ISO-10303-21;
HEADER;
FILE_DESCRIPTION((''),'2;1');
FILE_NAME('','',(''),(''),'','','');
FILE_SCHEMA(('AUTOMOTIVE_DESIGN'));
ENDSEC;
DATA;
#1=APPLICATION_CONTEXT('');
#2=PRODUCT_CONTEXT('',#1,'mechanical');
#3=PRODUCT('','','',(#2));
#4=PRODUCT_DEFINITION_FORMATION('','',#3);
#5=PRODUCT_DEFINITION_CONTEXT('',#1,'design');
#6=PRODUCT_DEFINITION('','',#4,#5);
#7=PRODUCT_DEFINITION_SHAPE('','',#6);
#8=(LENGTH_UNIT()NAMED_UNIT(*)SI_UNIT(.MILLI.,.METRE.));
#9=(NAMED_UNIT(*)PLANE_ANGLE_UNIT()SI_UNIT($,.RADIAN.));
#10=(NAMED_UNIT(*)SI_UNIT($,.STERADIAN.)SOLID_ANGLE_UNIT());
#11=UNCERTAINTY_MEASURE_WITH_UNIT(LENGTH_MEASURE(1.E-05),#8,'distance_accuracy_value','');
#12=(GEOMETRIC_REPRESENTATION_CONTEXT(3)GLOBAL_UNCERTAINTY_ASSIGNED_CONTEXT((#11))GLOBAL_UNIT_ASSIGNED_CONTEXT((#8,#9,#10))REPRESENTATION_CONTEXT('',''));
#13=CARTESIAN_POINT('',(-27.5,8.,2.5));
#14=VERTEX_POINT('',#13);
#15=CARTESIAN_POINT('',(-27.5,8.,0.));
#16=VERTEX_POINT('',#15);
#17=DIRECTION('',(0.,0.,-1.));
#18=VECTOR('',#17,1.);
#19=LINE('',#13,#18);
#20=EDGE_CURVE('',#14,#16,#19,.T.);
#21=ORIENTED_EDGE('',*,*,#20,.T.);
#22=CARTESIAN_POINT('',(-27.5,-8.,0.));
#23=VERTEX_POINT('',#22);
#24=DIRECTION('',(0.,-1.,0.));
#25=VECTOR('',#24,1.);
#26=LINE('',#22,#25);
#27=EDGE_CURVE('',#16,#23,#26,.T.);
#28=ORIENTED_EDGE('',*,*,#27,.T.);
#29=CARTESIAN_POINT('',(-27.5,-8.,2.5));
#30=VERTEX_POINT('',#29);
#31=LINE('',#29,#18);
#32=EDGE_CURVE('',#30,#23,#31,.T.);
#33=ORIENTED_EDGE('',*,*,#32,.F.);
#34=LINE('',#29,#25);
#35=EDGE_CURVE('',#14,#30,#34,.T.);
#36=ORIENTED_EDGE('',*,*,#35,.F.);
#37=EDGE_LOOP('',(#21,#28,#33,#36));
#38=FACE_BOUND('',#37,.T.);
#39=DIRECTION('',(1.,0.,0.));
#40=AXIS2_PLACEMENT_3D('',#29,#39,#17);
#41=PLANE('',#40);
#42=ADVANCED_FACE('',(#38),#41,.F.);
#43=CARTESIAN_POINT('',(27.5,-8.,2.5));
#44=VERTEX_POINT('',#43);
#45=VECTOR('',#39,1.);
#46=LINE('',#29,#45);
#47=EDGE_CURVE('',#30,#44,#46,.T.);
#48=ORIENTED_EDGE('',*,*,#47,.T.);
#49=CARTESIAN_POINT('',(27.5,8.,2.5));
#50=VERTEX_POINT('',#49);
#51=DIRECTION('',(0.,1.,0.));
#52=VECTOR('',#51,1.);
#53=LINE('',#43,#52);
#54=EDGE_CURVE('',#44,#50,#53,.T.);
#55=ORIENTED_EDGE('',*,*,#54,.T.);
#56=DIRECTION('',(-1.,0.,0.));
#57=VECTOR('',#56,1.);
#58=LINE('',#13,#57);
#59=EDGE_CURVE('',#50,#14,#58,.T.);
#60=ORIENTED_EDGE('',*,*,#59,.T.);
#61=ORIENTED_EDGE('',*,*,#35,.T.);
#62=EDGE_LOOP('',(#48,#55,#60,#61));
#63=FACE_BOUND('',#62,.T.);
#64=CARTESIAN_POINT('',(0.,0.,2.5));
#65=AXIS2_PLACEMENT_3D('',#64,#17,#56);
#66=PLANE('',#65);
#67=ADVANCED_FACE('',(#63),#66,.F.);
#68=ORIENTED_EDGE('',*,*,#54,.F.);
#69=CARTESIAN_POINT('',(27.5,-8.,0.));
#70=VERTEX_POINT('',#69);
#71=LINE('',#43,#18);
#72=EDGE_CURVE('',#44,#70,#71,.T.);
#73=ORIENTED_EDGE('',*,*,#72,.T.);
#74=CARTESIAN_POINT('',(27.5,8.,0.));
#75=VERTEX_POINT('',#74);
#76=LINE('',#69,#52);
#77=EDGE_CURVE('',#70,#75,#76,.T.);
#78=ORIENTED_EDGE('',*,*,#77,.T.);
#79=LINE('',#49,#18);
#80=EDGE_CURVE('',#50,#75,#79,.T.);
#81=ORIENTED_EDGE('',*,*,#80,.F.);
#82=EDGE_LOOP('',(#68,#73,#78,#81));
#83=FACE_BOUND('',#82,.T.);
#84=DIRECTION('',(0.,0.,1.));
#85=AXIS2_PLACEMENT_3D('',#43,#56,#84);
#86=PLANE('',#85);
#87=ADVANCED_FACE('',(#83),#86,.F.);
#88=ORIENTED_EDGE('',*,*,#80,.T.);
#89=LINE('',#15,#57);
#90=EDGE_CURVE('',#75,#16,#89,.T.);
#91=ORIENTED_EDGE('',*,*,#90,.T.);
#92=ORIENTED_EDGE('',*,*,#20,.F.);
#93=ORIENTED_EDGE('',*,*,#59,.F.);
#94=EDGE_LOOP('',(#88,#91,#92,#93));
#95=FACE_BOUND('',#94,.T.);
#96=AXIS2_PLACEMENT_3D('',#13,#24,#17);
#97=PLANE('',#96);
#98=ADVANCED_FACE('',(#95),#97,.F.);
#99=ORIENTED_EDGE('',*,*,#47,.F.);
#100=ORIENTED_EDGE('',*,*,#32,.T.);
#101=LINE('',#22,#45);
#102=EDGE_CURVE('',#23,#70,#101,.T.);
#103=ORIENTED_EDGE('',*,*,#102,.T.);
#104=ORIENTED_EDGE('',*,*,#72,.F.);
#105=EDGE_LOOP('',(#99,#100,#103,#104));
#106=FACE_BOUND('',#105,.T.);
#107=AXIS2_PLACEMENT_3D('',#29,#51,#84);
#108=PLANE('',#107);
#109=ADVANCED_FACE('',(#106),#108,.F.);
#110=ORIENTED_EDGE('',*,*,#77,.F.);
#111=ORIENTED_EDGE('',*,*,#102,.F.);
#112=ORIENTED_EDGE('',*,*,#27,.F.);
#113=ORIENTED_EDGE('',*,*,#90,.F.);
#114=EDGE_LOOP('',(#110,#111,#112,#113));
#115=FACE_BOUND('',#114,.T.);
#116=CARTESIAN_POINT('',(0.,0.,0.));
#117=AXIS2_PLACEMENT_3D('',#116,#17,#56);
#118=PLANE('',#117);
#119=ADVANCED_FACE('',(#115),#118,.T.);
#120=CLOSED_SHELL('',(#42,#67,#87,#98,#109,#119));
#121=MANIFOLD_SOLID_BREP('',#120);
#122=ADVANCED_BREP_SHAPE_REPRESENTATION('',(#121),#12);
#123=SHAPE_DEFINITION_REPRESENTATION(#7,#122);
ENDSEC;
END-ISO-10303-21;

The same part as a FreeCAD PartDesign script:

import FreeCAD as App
import Part
import Sketcher
from FreeCAD import Vector
Q = App.Units.Quantity


def add_polygon(sketch, points):
    """Adds a closed chain of lines whose ends are joined by coincident constraints."""
    first, n = sketch.GeometryCount, len(points)
    for a, b in zip(points, points[1:] + points[:1]):
        sketch.addGeometry(Part.LineSegment(App.Vector(*a, 0), App.Vector(*b, 0)), False)
    for i in range(n):
        sketch.addConstraint(Sketcher.Constraint("Coincident", first + i, 2, first + (i + 1) % n, 1))

doc = App.newDocument("Part")
body = doc.addObject("PartDesign::Body", "Body")

# Sketch on XY plane
sketch1 = body.newObject("Sketcher::SketchObject", "Sketch")
sketch1.AttachmentSupport = (doc.getObject("XY_Plane"), [""])
sketch1.MapMode = "FlatFace"
add_polygon(sketch1, [(-28, 8), (-28, -8), (28, -8), (28, 8)])  # lines 0-3
sketch1.addConstraint([
    Sketcher.Constraint("Vertical", 0),
    Sketcher.Constraint("Horizontal", 1),
    Sketcher.Constraint("Vertical", 2),
    Sketcher.Constraint("Horizontal", 3),
    Sketcher.Constraint("Symmetric", 0, 2, 2, 2, -1, 1),
    Sketcher.Constraint("DistanceX", 1, 1, 1, 2, Q("55 mm")),
    Sketcher.Constraint("DistanceY", 0, 2, 0, 1, Q("16 mm")),
])
pad1 = body.newObject("PartDesign::Pad", "Pad")
pad1.Profile = sketch1
pad1.Length = 2.5

doc.recompute()
